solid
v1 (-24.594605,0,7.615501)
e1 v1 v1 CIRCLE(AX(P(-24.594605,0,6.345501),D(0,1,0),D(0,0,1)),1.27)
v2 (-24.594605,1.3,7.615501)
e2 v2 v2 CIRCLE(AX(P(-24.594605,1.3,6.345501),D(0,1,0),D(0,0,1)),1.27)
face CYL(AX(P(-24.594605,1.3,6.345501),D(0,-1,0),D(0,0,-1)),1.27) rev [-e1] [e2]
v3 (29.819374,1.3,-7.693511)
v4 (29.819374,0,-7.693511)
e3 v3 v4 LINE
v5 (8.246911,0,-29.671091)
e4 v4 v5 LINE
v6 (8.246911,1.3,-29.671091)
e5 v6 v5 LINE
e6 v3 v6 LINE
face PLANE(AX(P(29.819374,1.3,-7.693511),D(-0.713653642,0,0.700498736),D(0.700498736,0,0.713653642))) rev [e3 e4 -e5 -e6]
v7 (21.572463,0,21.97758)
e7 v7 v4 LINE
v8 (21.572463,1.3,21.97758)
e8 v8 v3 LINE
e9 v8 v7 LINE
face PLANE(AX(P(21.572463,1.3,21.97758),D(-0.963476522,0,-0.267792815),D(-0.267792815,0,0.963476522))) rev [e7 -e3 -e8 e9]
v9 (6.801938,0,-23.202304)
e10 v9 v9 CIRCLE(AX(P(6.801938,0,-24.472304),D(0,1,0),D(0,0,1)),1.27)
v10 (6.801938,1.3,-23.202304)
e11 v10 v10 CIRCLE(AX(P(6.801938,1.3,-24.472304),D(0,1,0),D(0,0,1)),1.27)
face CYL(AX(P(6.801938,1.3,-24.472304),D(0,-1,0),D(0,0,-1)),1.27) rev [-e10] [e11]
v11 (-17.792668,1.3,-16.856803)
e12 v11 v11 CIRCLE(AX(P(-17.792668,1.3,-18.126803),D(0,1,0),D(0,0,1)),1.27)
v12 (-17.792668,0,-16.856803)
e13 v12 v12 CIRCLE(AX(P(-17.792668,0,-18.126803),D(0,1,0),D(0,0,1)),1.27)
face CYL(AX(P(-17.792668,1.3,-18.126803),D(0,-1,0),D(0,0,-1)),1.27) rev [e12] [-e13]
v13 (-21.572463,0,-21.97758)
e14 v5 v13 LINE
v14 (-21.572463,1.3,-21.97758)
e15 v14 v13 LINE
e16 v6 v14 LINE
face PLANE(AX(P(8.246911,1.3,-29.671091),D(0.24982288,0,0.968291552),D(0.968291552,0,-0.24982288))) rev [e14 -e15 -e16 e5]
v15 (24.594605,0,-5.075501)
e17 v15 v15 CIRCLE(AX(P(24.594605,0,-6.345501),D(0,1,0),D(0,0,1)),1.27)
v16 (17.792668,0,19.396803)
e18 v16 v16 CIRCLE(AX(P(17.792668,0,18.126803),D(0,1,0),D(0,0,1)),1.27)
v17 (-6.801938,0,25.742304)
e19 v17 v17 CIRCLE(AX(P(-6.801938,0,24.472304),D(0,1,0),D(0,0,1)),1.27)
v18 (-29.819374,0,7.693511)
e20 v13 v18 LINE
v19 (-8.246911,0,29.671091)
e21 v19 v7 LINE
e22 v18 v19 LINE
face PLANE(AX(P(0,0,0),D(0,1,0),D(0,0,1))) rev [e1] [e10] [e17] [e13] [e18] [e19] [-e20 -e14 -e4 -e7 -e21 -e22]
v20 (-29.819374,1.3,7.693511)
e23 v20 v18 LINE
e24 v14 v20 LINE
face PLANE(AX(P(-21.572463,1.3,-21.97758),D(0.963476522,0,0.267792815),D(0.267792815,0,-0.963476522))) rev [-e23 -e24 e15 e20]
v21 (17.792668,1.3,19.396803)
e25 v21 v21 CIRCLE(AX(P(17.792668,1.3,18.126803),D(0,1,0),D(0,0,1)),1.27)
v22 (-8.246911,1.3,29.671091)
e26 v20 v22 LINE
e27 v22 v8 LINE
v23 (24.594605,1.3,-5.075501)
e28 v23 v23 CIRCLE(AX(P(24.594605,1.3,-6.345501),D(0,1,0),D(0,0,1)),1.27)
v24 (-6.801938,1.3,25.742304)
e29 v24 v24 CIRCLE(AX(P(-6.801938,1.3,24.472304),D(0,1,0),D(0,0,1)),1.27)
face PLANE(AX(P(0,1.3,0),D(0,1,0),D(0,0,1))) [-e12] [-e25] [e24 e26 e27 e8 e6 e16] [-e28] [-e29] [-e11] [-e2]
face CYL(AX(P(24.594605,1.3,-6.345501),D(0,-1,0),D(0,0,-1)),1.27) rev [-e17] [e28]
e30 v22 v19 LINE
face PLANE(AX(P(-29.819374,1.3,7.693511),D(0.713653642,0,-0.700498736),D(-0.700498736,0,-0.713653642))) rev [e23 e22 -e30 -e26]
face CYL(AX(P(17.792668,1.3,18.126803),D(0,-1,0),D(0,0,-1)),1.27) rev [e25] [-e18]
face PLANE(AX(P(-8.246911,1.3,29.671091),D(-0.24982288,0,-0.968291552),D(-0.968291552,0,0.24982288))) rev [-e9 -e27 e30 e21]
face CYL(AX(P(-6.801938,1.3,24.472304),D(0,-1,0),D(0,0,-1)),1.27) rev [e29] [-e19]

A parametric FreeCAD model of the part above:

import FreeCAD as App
import Part
import Sketcher
from FreeCAD import Vector
Q = App.Units.Quantity

doc = App.newDocument("Part")
params = doc.addObject("Spreadsheet::Sheet", "Params")
for row, (alias, value) in enumerate([
    ("pad1_length", "1.3 mm"),
    ("sketch2_diameter", "2.54 mm"),
], start=1):
    params.set(f"A{row}", alias)
    params.set(f"B{row}", "=" + value)
    params.setAlias(f"B{row}", alias)

body = doc.addObject("PartDesign::Body", "Body")

sketch1 = body.newObject("Sketcher::SketchObject", "Sketch")
sketch1.AttachmentSupport = (doc.getObject("XZ_Plane"), [""])
sketch1.MapMode = "FlatFace"
sketch1.addGeometry([
    Part.LineSegment(Vector(21.572463, 21.97758, 0), Vector(29.819374, -7.693511, 0)),
    Part.LineSegment(Vector(29.819374, -7.693511, 0), Vector(8.246911, -29.671091, 0)),
    Part.LineSegment(Vector(8.246911, -29.671091, 0), Vector(-21.572463, -21.97758, 0)),
    Part.LineSegment(Vector(-21.572463, -21.97758, 0), Vector(-29.819374, 7.693511, 0)),
    Part.LineSegment(Vector(-29.819374, 7.693511, 0), Vector(-8.246911, 29.671091, 0)),
    Part.LineSegment(Vector(-8.246911, 29.671091, 0), Vector(21.572463, 21.97758, 0)),
], False)
sketch1.addConstraint([
    Sketcher.Constraint("Coincident", 0, 2, 1, 1),
    Sketcher.Constraint("Coincident", 1, 2, 2, 1),
    Sketcher.Constraint("Coincident", 2, 2, 3, 1),
    Sketcher.Constraint("Coincident", 3, 2, 4, 1),
    Sketcher.Constraint("Coincident", 4, 2, 5, 1),
    Sketcher.Constraint("Coincident", 5, 2, 0, 1),
    Sketcher.Constraint("Symmetric", 0, 2, 3, 2, -1, 1),
    Sketcher.Constraint("Symmetric", 1, 2, 4, 2, -1, 1),
    Sketcher.Constraint("Symmetric", 2, 2, 5, 2, -1, 1),
    Sketcher.Constraint("Equal", 0, 1),
    Sketcher.Constraint("Equal", 1, 2),
    Sketcher.Constraint("DistanceY", 0, 2, -1, 1, Q("7.693511 mm")),
    Sketcher.Constraint("DistanceX", -1, 1, 1, 2, Q("8.246911 mm")),
    Sketcher.Constraint("DistanceY", 1, 2, -1, 1, Q("29.671091 mm")),
    Sketcher.Constraint("DistanceY", 2, 2, -1, 1, Q("21.97758 mm")),
])
pad1 = body.newObject("PartDesign::Pad", "Pad")
pad1.Profile = sketch1
pad1.setExpression("Length", "Params.pad1_length")
pad1.Reversed = True

sketch2 = body.newObject("Sketcher::SketchObject", "Sketch001")
sketch2.AttachmentSupport = (doc.getObject("XZ_Plane"), [""])
sketch2.MapMode = "FlatFace"
sketch2.addGeometry([
    Part.Circle(Vector(6.801938, -24.472304, 0), Vector(0, 0, 1), 1.27),
    Part.Circle(Vector(24.594605, -6.345501, 0), Vector(0, 0, 1), 1.27),
    Part.Circle(Vector(17.792668, 18.126803, 0), Vector(0, 0, 1), 1.27),
    Part.Circle(Vector(-6.801938, 24.472304, 0), Vector(0, 0, 1), 1.27),
    Part.Circle(Vector(-24.594605, 6.345501, 0), Vector(0, 0, 1), 1.27),
    Part.Circle(Vector(-17.792668, -18.126803, 0), Vector(0, 0, 1), 1.27),
], False)
sketch2.addConstraint([
    Sketcher.Constraint("Equal", 0, 1),
    Sketcher.Constraint("Equal", 1, 2),
    Sketcher.Constraint("Equal", 2, 3),
    Sketcher.Constraint("Equal", 3, 4),
    Sketcher.Constraint("Equal", 4, 5),
    Sketcher.Constraint("Symmetric", 0, 3, 3, 3, -1, 1),
    Sketcher.Constraint("Symmetric", 1, 3, 4, 3, -1, 1),
    Sketcher.Constraint("Symmetric", 2, 3, 5, 3, -1, 1),
    Sketcher.Constraint("Diameter", 0, Q("2.54 mm")),
    Sketcher.Constraint("DistanceY", 1, 3, -1, 1, Q("6.345501 mm")),
    Sketcher.Constraint("DistanceY", 2, 3, 3, 3, Q("6.345501 mm")),
    Sketcher.Constraint("DistanceY", 4, 3, 2, 3, Q("11.781301 mm")),
    Sketcher.Constraint("DistanceX", 0, 3, 2, 3, Q("10.99073 mm")),
    Sketcher.Constraint("DistanceX", 4, 3, 1, 3, Q("49.189211 mm")),
    Sketcher.Constraint("DistanceX", -1, 1, 0, 3, Q("6.801938 mm")),
])
sketch2.setExpression("Constraints[8]", "Params.sketch2_diameter")
pocket1 = body.newObject("PartDesign::Pocket", "Pocket")
pocket1.Profile = sketch2
pocket1.Type = "ThroughAll"

doc.recompute()
